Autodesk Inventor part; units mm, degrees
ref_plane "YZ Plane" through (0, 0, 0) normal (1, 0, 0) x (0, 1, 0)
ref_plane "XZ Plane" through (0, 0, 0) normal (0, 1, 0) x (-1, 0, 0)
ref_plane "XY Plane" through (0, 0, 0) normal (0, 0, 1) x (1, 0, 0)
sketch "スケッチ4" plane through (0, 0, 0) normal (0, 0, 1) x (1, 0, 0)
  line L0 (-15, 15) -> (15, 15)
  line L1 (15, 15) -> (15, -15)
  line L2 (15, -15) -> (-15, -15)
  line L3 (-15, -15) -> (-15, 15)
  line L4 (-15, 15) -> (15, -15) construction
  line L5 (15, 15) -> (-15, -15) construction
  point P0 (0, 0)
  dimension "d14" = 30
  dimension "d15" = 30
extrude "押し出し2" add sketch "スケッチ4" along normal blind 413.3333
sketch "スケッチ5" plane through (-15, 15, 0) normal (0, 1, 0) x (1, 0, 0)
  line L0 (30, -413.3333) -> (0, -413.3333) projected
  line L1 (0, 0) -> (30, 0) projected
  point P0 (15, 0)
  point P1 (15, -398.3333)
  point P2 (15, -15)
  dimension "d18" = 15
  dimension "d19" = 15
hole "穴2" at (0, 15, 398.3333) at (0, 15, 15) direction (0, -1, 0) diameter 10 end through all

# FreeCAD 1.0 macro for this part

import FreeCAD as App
import Part
import Sketcher


def add_polygon(sketch, points):
    """Adds a closed chain of lines whose ends are joined by coincident constraints."""
    first, n = sketch.GeometryCount, len(points)
    for a, b in zip(points, points[1:] + points[:1]):
        sketch.addGeometry(Part.LineSegment(App.Vector(*a, 0), App.Vector(*b, 0)), False)
    for i in range(n):
        sketch.addConstraint(Sketcher.Constraint("Coincident", first + i, 2, first + (i + 1) % n, 1))

doc = App.newDocument("Part")
body = doc.addObject("PartDesign::Body", "Body")

sketch1 = doc.addObject("Sketcher::SketchObject", "Sketch")
body.addObject(sketch1)
sketch1.AttachmentSupport = (doc.XY_Plane, [""])
sketch1.MapMode = "FlatFace"
add_polygon(sketch1, [(15, 15), (-15, 15), (-15, -15), (15, -15)])
sketch1.addConstraint(Sketcher.Constraint("Horizontal", 0))
sketch1.addConstraint(Sketcher.Constraint("Vertical", 1))
sketch1.addConstraint(Sketcher.Constraint("Horizontal", 2))
sketch1.addConstraint(Sketcher.Constraint("Vertical", 3))
sketch1.addConstraint(Sketcher.Constraint("Symmetric", 0, 2, 2, 2, -1, 1))
sketch1.addConstraint(Sketcher.Constraint("Equal", 2, 1))
sketch1.addConstraint(Sketcher.Constraint("DistanceX", 0, 2, 0, 1, 30.0))
pad1 = doc.addObject("PartDesign::Pad", "Pad")
body.addObject(pad1)
pad1.Profile = sketch1
pad1.Length = 413.3333

sketch2 = doc.addObject("Sketcher::SketchObject", "Sketch001")
body.addObject(sketch2)
sketch2.AttachmentSupport = (doc.XZ_Plane, [""])
sketch2.MapMode = "FlatFace"
sketch2.AttachmentOffset = App.Placement(App.Vector(0, 0, -15), App.Rotation())
sketch2.addGeometry(Part.Circle(App.Vector(0, 398, 0), App.Vector(0, 0, 1), 5), False)
sketch2.addGeometry(Part.Circle(App.Vector(0, 15, 0), App.Vector(0, 0, 1), 5), False)
sketch2.addConstraint(Sketcher.Constraint("Equal", 0, 1))
sketch2.addConstraint(Sketcher.Constraint("PointOnObject", 0, 3, -2))
sketch2.addConstraint(Sketcher.Constraint("PointOnObject", 1, 3, -2))
sketch2.addConstraint(Sketcher.Constraint("Diameter", 0, 10.0))
sketch2.addConstraint(Sketcher.Constraint("DistanceY", -1, 1, 1, 3, 15.0))
sketch2.addConstraint(Sketcher.Constraint("DistanceY", -1, 1, 0, 3, 398.3333))
doc.recompute()
hole = doc.addObject("PartDesign::Hole", "Hole")
body.addObject(hole)
hole.Profile = sketch2
hole.ThreadType = "None"
hole.Diameter = 10
hole.DepthType = "ThroughAll"
hole.Reversed = True

doc.recompute()
